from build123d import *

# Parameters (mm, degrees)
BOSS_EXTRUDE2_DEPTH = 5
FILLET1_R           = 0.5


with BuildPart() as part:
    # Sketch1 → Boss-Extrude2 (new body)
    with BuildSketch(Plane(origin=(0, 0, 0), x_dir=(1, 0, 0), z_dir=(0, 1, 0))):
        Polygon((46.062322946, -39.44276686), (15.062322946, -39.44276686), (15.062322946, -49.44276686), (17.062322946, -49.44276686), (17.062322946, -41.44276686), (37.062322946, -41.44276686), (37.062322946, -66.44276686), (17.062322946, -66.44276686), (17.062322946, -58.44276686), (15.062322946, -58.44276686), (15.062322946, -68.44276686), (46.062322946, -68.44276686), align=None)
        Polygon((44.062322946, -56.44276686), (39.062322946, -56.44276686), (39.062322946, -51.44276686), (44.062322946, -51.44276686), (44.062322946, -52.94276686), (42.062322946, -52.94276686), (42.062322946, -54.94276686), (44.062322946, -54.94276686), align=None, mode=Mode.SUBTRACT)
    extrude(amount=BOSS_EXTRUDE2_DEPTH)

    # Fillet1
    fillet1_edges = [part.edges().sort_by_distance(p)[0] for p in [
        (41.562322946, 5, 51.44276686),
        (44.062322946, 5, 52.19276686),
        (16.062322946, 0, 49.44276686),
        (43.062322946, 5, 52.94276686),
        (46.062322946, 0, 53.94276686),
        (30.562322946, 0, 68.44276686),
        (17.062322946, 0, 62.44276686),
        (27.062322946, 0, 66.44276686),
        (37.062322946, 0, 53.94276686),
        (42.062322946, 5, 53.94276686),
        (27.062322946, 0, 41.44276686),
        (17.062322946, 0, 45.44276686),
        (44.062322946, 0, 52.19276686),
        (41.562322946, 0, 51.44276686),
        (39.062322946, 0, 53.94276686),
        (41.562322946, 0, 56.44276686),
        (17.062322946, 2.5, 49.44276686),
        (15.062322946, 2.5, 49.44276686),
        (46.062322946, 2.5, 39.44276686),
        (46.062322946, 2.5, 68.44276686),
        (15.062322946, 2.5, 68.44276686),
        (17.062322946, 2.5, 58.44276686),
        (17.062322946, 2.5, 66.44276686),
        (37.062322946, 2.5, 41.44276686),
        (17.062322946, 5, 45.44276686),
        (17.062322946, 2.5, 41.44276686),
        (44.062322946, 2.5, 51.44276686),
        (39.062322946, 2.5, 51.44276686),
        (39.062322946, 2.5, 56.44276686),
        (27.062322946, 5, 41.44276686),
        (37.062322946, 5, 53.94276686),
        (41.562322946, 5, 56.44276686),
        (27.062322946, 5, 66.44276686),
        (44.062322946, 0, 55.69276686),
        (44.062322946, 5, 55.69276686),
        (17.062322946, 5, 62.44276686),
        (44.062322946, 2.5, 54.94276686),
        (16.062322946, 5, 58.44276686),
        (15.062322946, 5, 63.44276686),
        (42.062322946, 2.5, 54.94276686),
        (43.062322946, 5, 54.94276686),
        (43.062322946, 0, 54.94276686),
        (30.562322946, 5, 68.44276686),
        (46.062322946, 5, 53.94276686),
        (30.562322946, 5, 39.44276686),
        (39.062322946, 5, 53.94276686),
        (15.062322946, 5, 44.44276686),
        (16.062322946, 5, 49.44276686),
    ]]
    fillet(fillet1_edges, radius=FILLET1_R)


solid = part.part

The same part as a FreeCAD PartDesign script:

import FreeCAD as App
import Part
import Sketcher

V = App.Vector


def edges_at(feature, points):
    """Names of the edges that pass closest to the given points."""
    edges = feature.Shape.Edges
    near = lambda p: min(range(len(edges)), key=lambda i: edges[i].distToShape(Part.Vertex(*p))[0])
    return sorted({f"Edge{near(p) + 1}" for p in points})


def add_polygon(sketch, points):
    """Adds a closed chain of lines whose ends are joined by coincident constraints."""
    first, n = sketch.GeometryCount, len(points)
    for a, b in zip(points, points[1:] + points[:1]):
        sketch.addGeometry(Part.LineSegment(App.Vector(*a, 0), App.Vector(*b, 0)), False)
    for i in range(n):
        sketch.addConstraint(Sketcher.Constraint("Coincident", first + i, 2, first + (i + 1) % n, 1))

doc = App.newDocument("Part")
params = doc.addObject("Spreadsheet::Sheet", "Params")
for row, (alias, value) in enumerate([
    ("sketch1_width", "31 mm"),
    ("sketch1_width2", "2 mm"),
    ("sketch1_width3", "20 mm"),
    ("sketch1_width4", "5 mm"),
    ("sketch1_height", "10 mm"),
    ("pad1_length", "5 mm"),
    ("fillet_radius", "0.5 mm"),
], start=1):
    params.set(f"A{row}", alias)
    params.set(f"B{row}", "=" + value)
    params.setAlias(f"B{row}", alias)

body = doc.addObject("PartDesign::Body", "Body")

# Sketch on XZ plane
sketch1 = body.newObject("Sketcher::SketchObject", "Sketch")
sketch1.AttachmentSupport = (doc.getObject("XZ_Plane"), [""])
sketch1.MapMode = "FlatFace"
add_polygon(sketch1, [(46.062323, 39.442767), (15.062323, 39.442767), (15.062323, 49.442767), (17.062323, 49.442767), (17.062323, 41.442767), (37.062323, 41.442767), (37.062323, 66.442767), (17.062323, 66.442767), (17.062323, 58.442767), (15.062323, 58.442767), (15.062323, 68.442767), (46.062323, 68.442767)])  # lines 0-11
add_polygon(sketch1, [(44.062323, 54.942767), (44.062323, 56.442767), (39.062323, 56.442767), (39.062323, 51.442767), (44.062323, 51.442767), (44.062323, 52.942767), (42.062323, 52.942767), (42.062323, 54.942767)])  # lines 12-19
sketch1.addConstraint(Sketcher.Constraint("Horizontal", 0))
sketch1.addConstraint(Sketcher.Constraint("Vertical", 1))
sketch1.addConstraint(Sketcher.Constraint("Horizontal", 2))
sketch1.addConstraint(Sketcher.Constraint("Vertical", 3))
sketch1.addConstraint(Sketcher.Constraint("Horizontal", 4))
sketch1.addConstraint(Sketcher.Constraint("Vertical", 5))
sketch1.addConstraint(Sketcher.Constraint("Horizontal", 6))
sketch1.addConstraint(Sketcher.Constraint("Vertical", 7))
sketch1.addConstraint(Sketcher.Constraint("Horizontal", 8))
sketch1.addConstraint(Sketcher.Constraint("Vertical", 9))
sketch1.addConstraint(Sketcher.Constraint("Horizontal", 10))
sketch1.addConstraint(Sketcher.Constraint("Vertical", 11))
sketch1.addConstraint(Sketcher.Constraint("Vertical", 12))
sketch1.addConstraint(Sketcher.Constraint("Horizontal", 13))
sketch1.addConstraint(Sketcher.Constraint("Vertical", 14))
sketch1.addConstraint(Sketcher.Constraint("Horizontal", 15))
sketch1.addConstraint(Sketcher.Constraint("Vertical", 16))
sketch1.addConstraint(Sketcher.Constraint("Horizontal", 17))
sketch1.addConstraint(Sketcher.Constraint("Vertical", 18))
sketch1.addConstraint(Sketcher.Constraint("Horizontal", 19))
sketch1.addConstraint(Sketcher.Constraint("Vertical", 3, 2, 6, 2))
sketch1.addConstraint(Sketcher.Constraint("Vertical", 1, 2, 8, 2))
sketch1.addConstraint(Sketcher.Constraint("Vertical", 12, 2, 15, 2))
sketch1.addConstraint(Sketcher.Constraint("Equal", 8, 17))
sketch1.addConstraint(Sketcher.Constraint("Equal", 3, 7))
sketch1.addConstraint(Sketcher.Constraint("Equal", 1, 9))
sketch1.addConstraint(Sketcher.Constraint("Equal", 15, 14))
sketch1.addConstraint(Sketcher.Constraint("Equal", 12, 16))
sketch1.addConstraint(Sketcher.Constraint("Equal", 19, 18))
sketch1.addConstraint(Sketcher.Constraint("DistanceX", 0, 2, 0, 1, 31.0))
sketch1.addConstraint(Sketcher.Constraint("DistanceX", 2, 1, 2, 2, 2.0))
sketch1.addConstraint(Sketcher.Constraint("DistanceX", 4, 1, 4, 2, 20.0))
sketch1.addConstraint(Sketcher.Constraint("DistanceX", 13, 2, 13, 1, 5.0))
sketch1.addConstraint(Sketcher.Constraint("DistanceY", 1, 1, 1, 2, 10.0))
sketch1.addConstraint(Sketcher.Constraint("DistanceY", 3, 2, 3, 1, 8.0))
sketch1.addConstraint(Sketcher.Constraint("DistanceY", 5, 1, 5, 2, 25.0))
sketch1.addConstraint(Sketcher.Constraint("DistanceX", 12, 2, 10, 2, 2.0))
sketch1.addConstraint(Sketcher.Constraint("DistanceY", 12, 2, 10, 2, 12.0))
sketch1.addConstraint(Sketcher.Constraint("DistanceX", -1, 1, 0, 2, 15.062323))
sketch1.addConstraint(Sketcher.Constraint("DistanceY", -1, 1, 0, 2, 39.442767))
sketch1.setExpression("Constraints[49]", "Params.sketch1_width")
sketch1.setExpression("Constraints[50]", "Params.sketch1_width2")
sketch1.setExpression("Constraints[51]", "Params.sketch1_width3")
sketch1.setExpression("Constraints[52]", "Params.sketch1_width4")
sketch1.setExpression("Constraints[53]", "Params.sketch1_height")
pad1 = body.newObject("PartDesign::Pad", "Pad")
pad1.Profile = sketch1
pad1.setExpression("Length", "Params.pad1_length")
pad1.Reversed = True
doc.recompute()

fillet = body.newObject("PartDesign::Fillet", "Fillet")
fillet.Base = (pad1, edges_at(pad1, [
    (41.562, 5, 51.443),
    (44.062, 5, 52.193),
    (16.062, 0, 49.443),
    (43.062, 5, 52.943),
    (46.062, 0, 53.943),
    (30.562, 0, 68.443),
    (17.062, 0, 62.443),
    (27.062, 0, 66.443),
    (37.062, 0, 53.943),
    (42.062, 5, 53.943),
    (27.062, 0, 41.443),
    (17.062, 0, 45.443),
    (44.062, 0, 52.193),
    (41.562, 0, 51.443),
    (39.062, 0, 53.943),
    (41.562, 0, 56.443),
    (17.062, 2.5, 49.443),
    (15.062, 2.5, 49.443),
    (46.062, 2.5, 39.443),
    (46.062, 2.5, 68.443),
    (15.062, 2.5, 68.443),
    (17.062, 2.5, 58.443),
    (17.062, 2.5, 66.443),
    (37.062, 2.5, 41.443),
    (17.062, 5, 45.443),
    (17.062, 2.5, 41.443),
    (44.062, 2.5, 51.443),
    (39.062, 2.5, 51.443),
    (39.062, 2.5, 56.443),
    (27.062, 5, 41.443),
    (37.062, 5, 53.943),
    (41.562, 5, 56.443),
    (27.062, 5, 66.443),
    (44.062, 0, 55.693),
    (44.062, 5, 55.693),
    (17.062, 5, 62.443),
    (44.062, 2.5, 54.943),
    (16.062, 5, 58.443),
    (15.062, 5, 63.443),
    (42.062, 2.5, 54.943),
    (43.062, 5, 54.943),
    (43.062, 0, 54.943),
    (30.562, 5, 68.443),
    (46.062, 5, 53.943),
    (30.562, 5, 39.443),
    (39.062, 5, 53.943),
    (15.062, 5, 44.443),
    (16.062, 5, 49.443),
]))
fillet.setExpression("Radius", "Params.fillet_radius")

doc.recompute()
